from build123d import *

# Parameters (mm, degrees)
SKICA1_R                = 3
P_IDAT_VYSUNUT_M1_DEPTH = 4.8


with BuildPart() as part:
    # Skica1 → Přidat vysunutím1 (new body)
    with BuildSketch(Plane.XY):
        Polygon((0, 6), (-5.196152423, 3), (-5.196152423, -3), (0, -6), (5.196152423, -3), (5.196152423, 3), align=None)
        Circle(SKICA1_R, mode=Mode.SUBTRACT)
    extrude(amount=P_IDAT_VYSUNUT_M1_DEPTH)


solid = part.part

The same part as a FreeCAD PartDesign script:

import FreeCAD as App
import Part
import Sketcher
from FreeCAD import Vector
Q = App.Units.Quantity


def add_polygon(sketch, points):
    """Adds a closed chain of lines whose ends are joined by coincident constraints."""
    first, n = sketch.GeometryCount, len(points)
    for a, b in zip(points, points[1:] + points[:1]):
        sketch.addGeometry(Part.LineSegment(App.Vector(*a, 0), App.Vector(*b, 0)), False)
    for i in range(n):
        sketch.addConstraint(Sketcher.Constraint("Coincident", first + i, 2, first + (i + 1) % n, 1))

doc = App.newDocument("Part")
body = doc.addObject("PartDesign::Body", "Body")

# Sketch on XY plane
sketch1 = body.newObject("Sketcher::SketchObject", "Sketch")
sketch1.AttachmentSupport = (doc.getObject("XY_Plane"), [""])
sketch1.MapMode = "FlatFace"
add_polygon(sketch1, [(0, 6), (-5.196152, 3), (-5.196152, -3), (0, -6), (5.196152, -3), (5.196152, 3)])  # lines 0-5
sketch1.addGeometry(Part.Circle(Vector(0, 0, 0), Vector(0, 0, 1), 3), False)  # 6
sketch1.addConstraint([
    Sketcher.Constraint("Vertical", 1),
    Sketcher.Constraint("Vertical", 4),
    Sketcher.Constraint("Coincident", 6, 3, -1, 1),
    Sketcher.Constraint("Symmetric", 0, 2, 3, 2, -1, 1),
    Sketcher.Constraint("Symmetric", 2, 2, 5, 2, -1, 1),
    Sketcher.Constraint("PointOnObject", 2, 2, -2),
    Sketcher.Constraint("Parallel", 2, 5),
    Sketcher.Constraint("Horizontal", 1, 2, 3, 2),
    Sketcher.Constraint("Diameter", 6, Q("6 mm")),
    Sketcher.Constraint("DistanceY", 1, 2, 1, 1, Q("6 mm")),
    Sketcher.Constraint("Angle", 0, Q("-150 deg")),
    Sketcher.Constraint("Distance", 0, Q("6 mm")),
])
pad1 = body.newObject("PartDesign::Pad", "Pad")
pad1.Profile = sketch1
pad1.Length = 4.8

doc.recompute()
